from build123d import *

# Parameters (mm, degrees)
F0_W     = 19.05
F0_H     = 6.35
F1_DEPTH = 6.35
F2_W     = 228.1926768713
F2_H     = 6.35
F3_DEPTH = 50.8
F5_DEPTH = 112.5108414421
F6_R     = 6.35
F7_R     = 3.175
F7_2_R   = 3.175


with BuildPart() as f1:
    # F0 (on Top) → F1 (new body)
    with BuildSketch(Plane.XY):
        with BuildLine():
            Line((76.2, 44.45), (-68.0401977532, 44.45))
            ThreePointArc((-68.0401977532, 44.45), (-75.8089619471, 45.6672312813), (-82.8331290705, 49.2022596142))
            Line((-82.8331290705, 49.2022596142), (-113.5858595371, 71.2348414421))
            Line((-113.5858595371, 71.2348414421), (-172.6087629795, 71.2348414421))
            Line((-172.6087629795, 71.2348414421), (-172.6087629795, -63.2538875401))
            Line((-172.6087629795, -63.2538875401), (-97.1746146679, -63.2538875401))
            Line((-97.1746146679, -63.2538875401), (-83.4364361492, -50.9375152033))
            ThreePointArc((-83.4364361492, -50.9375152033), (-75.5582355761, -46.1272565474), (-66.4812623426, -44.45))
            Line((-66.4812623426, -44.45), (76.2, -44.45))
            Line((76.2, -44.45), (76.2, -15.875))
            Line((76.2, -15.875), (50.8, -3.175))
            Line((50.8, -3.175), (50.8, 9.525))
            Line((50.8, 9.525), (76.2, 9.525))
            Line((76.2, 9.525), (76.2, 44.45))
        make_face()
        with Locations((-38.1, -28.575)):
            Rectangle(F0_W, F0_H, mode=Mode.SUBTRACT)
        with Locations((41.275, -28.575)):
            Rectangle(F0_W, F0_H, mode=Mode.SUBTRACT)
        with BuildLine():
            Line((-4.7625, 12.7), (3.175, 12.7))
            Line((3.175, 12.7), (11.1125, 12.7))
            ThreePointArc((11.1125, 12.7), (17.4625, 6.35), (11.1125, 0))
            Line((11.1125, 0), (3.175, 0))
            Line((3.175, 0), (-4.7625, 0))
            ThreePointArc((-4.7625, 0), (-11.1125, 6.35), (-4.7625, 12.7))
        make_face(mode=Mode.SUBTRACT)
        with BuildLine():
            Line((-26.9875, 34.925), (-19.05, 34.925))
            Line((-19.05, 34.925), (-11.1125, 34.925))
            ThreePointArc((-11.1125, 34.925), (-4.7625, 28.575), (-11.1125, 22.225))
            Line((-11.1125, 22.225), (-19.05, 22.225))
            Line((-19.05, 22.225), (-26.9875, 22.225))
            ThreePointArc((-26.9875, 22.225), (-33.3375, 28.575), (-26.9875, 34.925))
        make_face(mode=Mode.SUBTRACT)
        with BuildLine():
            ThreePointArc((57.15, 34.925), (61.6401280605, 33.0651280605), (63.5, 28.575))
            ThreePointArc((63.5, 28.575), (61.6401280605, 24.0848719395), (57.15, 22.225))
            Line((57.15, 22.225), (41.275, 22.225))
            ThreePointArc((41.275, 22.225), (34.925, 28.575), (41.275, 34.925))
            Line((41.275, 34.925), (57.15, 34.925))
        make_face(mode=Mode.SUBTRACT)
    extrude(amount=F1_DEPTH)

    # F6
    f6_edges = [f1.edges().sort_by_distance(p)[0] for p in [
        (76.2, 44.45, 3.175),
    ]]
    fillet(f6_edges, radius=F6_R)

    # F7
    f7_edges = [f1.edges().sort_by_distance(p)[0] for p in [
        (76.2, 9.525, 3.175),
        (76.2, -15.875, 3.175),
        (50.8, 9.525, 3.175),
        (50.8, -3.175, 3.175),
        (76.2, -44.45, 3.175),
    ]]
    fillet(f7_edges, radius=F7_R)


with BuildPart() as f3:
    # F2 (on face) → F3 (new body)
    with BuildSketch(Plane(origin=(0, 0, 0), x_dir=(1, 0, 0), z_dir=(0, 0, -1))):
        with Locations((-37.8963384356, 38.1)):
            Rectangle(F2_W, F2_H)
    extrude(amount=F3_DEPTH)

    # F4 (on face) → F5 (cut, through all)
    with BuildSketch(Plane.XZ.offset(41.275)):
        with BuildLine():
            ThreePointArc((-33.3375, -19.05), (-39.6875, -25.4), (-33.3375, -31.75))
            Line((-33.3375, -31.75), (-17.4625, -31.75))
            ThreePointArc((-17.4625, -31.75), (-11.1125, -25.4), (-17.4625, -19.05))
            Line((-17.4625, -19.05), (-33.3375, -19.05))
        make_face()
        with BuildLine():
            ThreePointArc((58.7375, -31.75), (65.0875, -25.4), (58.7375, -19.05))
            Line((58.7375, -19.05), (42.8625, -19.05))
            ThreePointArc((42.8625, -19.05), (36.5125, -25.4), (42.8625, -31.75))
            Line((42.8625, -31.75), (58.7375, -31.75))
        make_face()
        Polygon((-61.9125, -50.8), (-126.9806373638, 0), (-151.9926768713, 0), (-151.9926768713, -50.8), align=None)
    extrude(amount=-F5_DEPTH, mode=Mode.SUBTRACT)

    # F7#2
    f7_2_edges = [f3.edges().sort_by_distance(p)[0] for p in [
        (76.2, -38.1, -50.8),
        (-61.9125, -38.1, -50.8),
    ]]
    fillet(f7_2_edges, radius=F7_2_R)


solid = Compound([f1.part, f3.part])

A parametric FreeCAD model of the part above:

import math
import FreeCAD as App
import Part
import Sketcher
from FreeCAD import Vector
Q = App.Units.Quantity


def edges_at(feature, points):
    """Names of the edges that pass closest to the given points."""
    edges = feature.Shape.Edges
    near = lambda p: min(range(len(edges)), key=lambda i: edges[i].distToShape(Part.Vertex(*p))[0])
    return sorted({f"Edge{near(p) + 1}" for p in points})


def add_polygon(sketch, points):
    """Adds a closed chain of lines whose ends are joined by coincident constraints."""
    first, n = sketch.GeometryCount, len(points)
    for a, b in zip(points, points[1:] + points[:1]):
        sketch.addGeometry(Part.LineSegment(App.Vector(*a, 0), App.Vector(*b, 0)), False)
    for i in range(n):
        sketch.addConstraint(Sketcher.Constraint("Coincident", first + i, 2, first + (i + 1) % n, 1))

doc = App.newDocument("Part")
body = doc.addObject("PartDesign::Body", "Body")

# Sketch on XY plane
sketch1 = body.newObject("Sketcher::SketchObject", "Sketch")
sketch1.AttachmentSupport = (doc.getObject("XY_Plane"), [""])
sketch1.MapMode = "FlatFace"
sketch1.addGeometry(Part.LineSegment(Vector(76, 44, 0), Vector(-68, 44, 0)), False)  # 0
sketch1.addGeometry(Part.ArcOfCircle(Part.Circle(Vector(-68, 70, 0), Vector(0, 0, 1), 25), math.radians(-126), math.radians(-90)), False)  # 1
sketch1.addGeometry(Part.LineSegment(Vector(-83, 49, 0), Vector(-114, 71, 0)), False)  # 2
sketch1.addGeometry(Part.LineSegment(Vector(-114, 71, 0), Vector(-173, 71, 0)), False)  # 3
sketch1.addGeometry(Part.LineSegment(Vector(-173, 71, 0), Vector(-173, -63, 0)), False)  # 4
sketch1.addGeometry(Part.LineSegment(Vector(-173, -63, 0), Vector(-97, -63, 0)), False)  # 5
sketch1.addGeometry(Part.LineSegment(Vector(-97, -63, 0), Vector(-83, -51, 0)), False)  # 6
sketch1.addGeometry(Part.ArcOfCircle(Part.Circle(Vector(-66, -70, 0), Vector(0, 0, 1), 25), math.radians(90), math.radians(132)), False)  # 7
sketch1.addGeometry(Part.LineSegment(Vector(-66, -44, 0), Vector(76, -44, 0)), False)  # 8
sketch1.addGeometry(Part.LineSegment(Vector(76, -44, 0), Vector(76, -16, 0)), False)  # 9
sketch1.addGeometry(Part.LineSegment(Vector(76, -16, 0), Vector(51, -3, 0)), False)  # 10
sketch1.addGeometry(Part.LineSegment(Vector(51, -3, 0), Vector(51, 10, 0)), False)  # 11
sketch1.addGeometry(Part.LineSegment(Vector(51, 10, 0), Vector(76, 10, 0)), False)  # 12
sketch1.addGeometry(Part.LineSegment(Vector(76, 10, 0), Vector(76, 44, 0)), False)  # 13
add_polygon(sketch1, [(-29, -32), (-48, -32), (-48, -25), (-29, -25)])  # lines 14-17
add_polygon(sketch1, [(51, -32), (32, -32), (32, -25), (51, -25)])  # lines 18-21
sketch1.addGeometry(Part.ArcOfCircle(Part.Circle(Vector(-5, 6, 0), Vector(0, 0, 1), 6), math.radians(90), math.radians(270)), False)  # 22
sketch1.addGeometry(Part.LineSegment(Vector(-5, 13, 0), Vector(11, 13, 0)), False)  # 23
sketch1.addGeometry(Part.ArcOfCircle(Part.Circle(Vector(11, 6, 0), Vector(0, 0, 1), 6), math.radians(-90), math.radians(90)), False)  # 24
sketch1.addGeometry(Part.LineSegment(Vector(11, 0, 0), Vector(-5, 0, 0)), False)  # 25
sketch1.addGeometry(Part.ArcOfCircle(Part.Circle(Vector(-27, 29, 0), Vector(0, 0, 1), 6), math.radians(90), math.radians(270)), False)  # 26
sketch1.addGeometry(Part.LineSegment(Vector(-27, 35, 0), Vector(-11, 35, 0)), False)  # 27
sketch1.addGeometry(Part.ArcOfCircle(Part.Circle(Vector(-11, 29, 0), Vector(0, 0, 1), 6), math.radians(-90), math.radians(90)), False)  # 28
sketch1.addGeometry(Part.LineSegment(Vector(-11, 22, 0), Vector(-27, 22, 0)), False)  # 29
sketch1.addGeometry(Part.LineSegment(Vector(41, 35, 0), Vector(57, 35, 0)), False)  # 30
sketch1.addGeometry(Part.ArcOfCircle(Part.Circle(Vector(57, 29, 0), Vector(0, 0, 1), 6), math.radians(0), math.radians(90)), False)  # 31
sketch1.addGeometry(Part.ArcOfCircle(Part.Circle(Vector(57, 29, 0), Vector(0, 0, 1), 6), math.radians(-90), math.radians(0)), False)  # 32
sketch1.addGeometry(Part.LineSegment(Vector(57, 22, 0), Vector(41, 22, 0)), False)  # 33
sketch1.addGeometry(Part.ArcOfCircle(Part.Circle(Vector(41, 29, 0), Vector(0, 0, 1), 6), math.radians(90), math.radians(270)), False)  # 34
sketch1.addConstraint(Sketcher.Constraint("Tangent", 0, 2, 1, 2))
sketch1.addConstraint(Sketcher.Constraint("Tangent", 1, 1, 2, 1))
sketch1.addConstraint(Sketcher.Constraint("Coincident", 2, 2, 3, 1))
sketch1.addConstraint(Sketcher.Constraint("Coincident", 3, 2, 4, 1))
sketch1.addConstraint(Sketcher.Constraint("Coincident", 4, 2, 5, 1))
sketch1.addConstraint(Sketcher.Constraint("Coincident", 5, 2, 6, 1))
sketch1.addConstraint(Sketcher.Constraint("Tangent", 6, 2, 7, 2))
sketch1.addConstraint(Sketcher.Constraint("Tangent", 7, 1, 8, 1))
sketch1.addConstraint(Sketcher.Constraint("Coincident", 8, 2, 9, 1))
sketch1.addConstraint(Sketcher.Constraint("Coincident", 9, 2, 10, 1))
sketch1.addConstraint(Sketcher.Constraint("Coincident", 10, 2, 11, 1))
sketch1.addConstraint(Sketcher.Constraint("Coincident", 11, 2, 12, 1))
sketch1.addConstraint(Sketcher.Constraint("Coincident", 12, 2, 13, 1))
sketch1.addConstraint(Sketcher.Constraint("Coincident", 13, 2, 0, 1))
sketch1.addConstraint(Sketcher.Constraint("Tangent", 22, 1, 23, 1))
sketch1.addConstraint(Sketcher.Constraint("Tangent", 23, 2, 24, 2))
sketch1.addConstraint(Sketcher.Constraint("Tangent", 24, 1, 25, 1))
sketch1.addConstraint(Sketcher.Constraint("Tangent", 25, 2, 22, 2))
sketch1.addConstraint(Sketcher.Constraint("Tangent", 26, 1, 27, 1))
sketch1.addConstraint(Sketcher.Constraint("Tangent", 27, 2, 28, 2))
sketch1.addConstraint(Sketcher.Constraint("Tangent", 28, 1, 29, 1))
sketch1.addConstraint(Sketcher.Constraint("Tangent", 29, 2, 26, 2))
sketch1.addConstraint(Sketcher.Constraint("Tangent", 30, 2, 31, 2))
sketch1.addConstraint(Sketcher.Constraint("Tangent", 31, 1, 32, 2))
sketch1.addConstraint(Sketcher.Constraint("Tangent", 32, 1, 33, 1))
sketch1.addConstraint(Sketcher.Constraint("Tangent", 33, 2, 34, 2))
sketch1.addConstraint(Sketcher.Constraint("Tangent", 34, 1, 30, 1))
sketch1.addConstraint(Sketcher.Constraint("Horizontal", 0))
sketch1.addConstraint(Sketcher.Constraint("Horizontal", 3))
sketch1.addConstraint(Sketcher.Constraint("Vertical", 4))
sketch1.addConstraint(Sketcher.Constraint("Horizontal", 5))
sketch1.addConstraint(Sketcher.Constraint("Horizontal", 8))
sketch1.addConstraint(Sketcher.Constraint("Vertical", 9))
sketch1.addConstraint(Sketcher.Constraint("Vertical", 11))
sketch1.addConstraint(Sketcher.Constraint("Horizontal", 12))
sketch1.addConstraint(Sketcher.Constraint("Vertical", 13))
sketch1.addConstraint(Sketcher.Constraint("Horizontal", 14))
sketch1.addConstraint(Sketcher.Constraint("Vertical", 15))
sketch1.addConstraint(Sketcher.Constraint("Horizontal", 16))
sketch1.addConstraint(Sketcher.Constraint("Vertical", 17))
sketch1.addConstraint(Sketcher.Constraint("Horizontal", 18))
sketch1.addConstraint(Sketcher.Constraint("Vertical", 19))
sketch1.addConstraint(Sketcher.Constraint("Horizontal", 20))
sketch1.addConstraint(Sketcher.Constraint("Vertical", 21))
sketch1.addConstraint(Sketcher.Constraint("Horizontal", 23))
sketch1.addConstraint(Sketcher.Constraint("Horizontal", 25))
sketch1.addConstraint(Sketcher.Constraint("Horizontal", 27))
sketch1.addConstraint(Sketcher.Constraint("Horizontal", 29))
sketch1.addConstraint(Sketcher.Constraint("Horizontal", 30))
sketch1.addConstraint(Sketcher.Constraint("Horizontal", 33))
sketch1.addConstraint(Sketcher.Constraint("Equal", 1, 7))
sketch1.addConstraint(Sketcher.Constraint("Equal", 24, 26))
sketch1.addConstraint(Sketcher.Constraint("Equal", 28, 31))
sketch1.addConstraint(Sketcher.Constraint("Equal", 31, 32))
sketch1.addConstraint(Sketcher.Constraint("Symmetric", 8, 2, 13, 2, -1))
sketch1.addConstraint(Sketcher.Constraint("PointOnObject", 24, 1, -1))
sketch1.addConstraint(Sketcher.Constraint("Horizontal", 28, 3, 31, 3))
sketch1.addConstraint(Sketcher.Constraint("Horizontal", 17, 2, 18, 2))
sketch1.addConstraint(Sketcher.Constraint("Horizontal", 16, 2, 19, 2))
sketch1.addConstraint(Sketcher.Constraint("Horizontal", 34, 3, 31, 1))
sketch1.addConstraint(Sketcher.Constraint("Vertical", 11, 2, 20, 2))
sketch1.addConstraint(Sketcher.Constraint("Equal", 16, 18))
sketch1.addConstraint(Sketcher.Constraint("Equal", 25, 27))
sketch1.addConstraint(Sketcher.Constraint("Equal", 29, 30))
sketch1.addConstraint(Sketcher.Constraint("Radius", 1, Q("1 in")))
sketch1.addConstraint(Sketcher.Constraint("DistanceX", 12, 1, 12, 2, Q("1 in")))
sketch1.addConstraint(Sketcher.Constraint("Radius", 22, Q("0.25 in")))
sketch1.addConstraint(Sketcher.Constraint("DistanceY", 11, 1, 11, 2, Q("0.5 in")))
sketch1.addConstraint(Sketcher.Constraint("DistanceX", -1, 1, 8, 2, Q("3 in")))
sketch1.addConstraint(Sketcher.Constraint("DistanceY", 15, 2, -1, 1, Q("1 in")))
sketch1.addConstraint(Sketcher.Constraint("DistanceY", 7, 3, 22, 3, Q("3 in")))
sketch1.addConstraint(Sketcher.Constraint("DistanceY", 9, 2, 11, 2, Q("1 in")))
sketch1.addConstraint(Sketcher.Constraint("DistanceY", 11, 2, 30, 2, Q("1 in")))
sketch1.addConstraint(Sketcher.Constraint("DistanceX", 14, 2, 14, 1, Q("0.75 in")))
sketch1.addConstraint(Sketcher.Constraint("DistanceY", 15, 1, 15, 2, Q("0.25 in")))
sketch1.addConstraint(Sketcher.Constraint("DistanceX", -1, 1, 31, 1, Q("2.5 in")))
sketch1.addConstraint(Sketcher.Constraint("DistanceX", 26, 3, 24, 3, Q("1.5 in")))
sketch1.addConstraint(Sketcher.Constraint("DistanceX", 23, 1, 23, 2, Q("0.625 in")))
sketch1.addConstraint(Sketcher.Constraint("DistanceY", 9, 1, 9, 2, Q("1.125 in")))
sketch1.addConstraint(Sketcher.Constraint("DistanceX", 22, 3, -1, 1, Q("0.1875 in")))
sketch1.addConstraint(Sketcher.Constraint("DistanceX", 14, 2, -1, 1, Q("1.875 in")))
sketch1.addConstraint(Sketcher.Constraint("DistanceX", 5, 1, 5, 2, 75.434148))
sketch1.addConstraint(Sketcher.Constraint("DistanceY", 4, 2, 4, 1, 134.488729))
sketch1.addConstraint(Sketcher.Constraint("DistanceX", 4, 2, 7, 3, 106.127501))
sketch1.addConstraint(Sketcher.Constraint("Distance", 6, 18.450761))
sketch1.addConstraint(Sketcher.Constraint("DistanceX", 0, 2, 0, 1, 144.240198))
sketch1.addConstraint(Sketcher.Constraint("DistanceX", 3, 2, 3, 1, 59.022903))
sketch1.addConstraint(Sketcher.Constraint("DistanceX", 8, 1, 8, 2, 142.681262))
pad1 = body.newObject("PartDesign::Pad", "Pad")
pad1.Profile = sketch1
pad1.Length = Q("0.25 in")
doc.recompute()

fillet = body.newObject("PartDesign::Fillet", "Fillet")
fillet.Base = (pad1, edges_at(pad1, [(76.2, 44.45, 3.175)]))
fillet.Radius = Q("0.25 in")
doc.recompute()

fillet2 = body.newObject("PartDesign::Fillet", "Fillet001")
fillet2.Base = (fillet, edges_at(fillet, [
    (76.2, 9.525, 3.175),
    (76.2, -15.875, 3.175),
    (50.8, 9.525, 3.175),
    (50.8, -3.175, 3.175),
    (76.2, -44.45, 3.175),
]))
fillet2.Radius = Q("0.125 in")
body2 = doc.addObject("PartDesign::Body", "Body001")

# Sketch on XY plane
sketch2 = body2.newObject("Sketcher::SketchObject", "Sketch001")
sketch2.AttachmentSupport = (doc.getObject("XY_Plane001"), [""])
sketch2.MapMode = "FlatFace"
add_polygon(sketch2, [(-152, -41), (-152, -35), (76, -35), (76, -41)])  # lines 0-3
sketch2.addConstraint(Sketcher.Constraint("Vertical", 0))
sketch2.addConstraint(Sketcher.Constraint("Horizontal", 1))
sketch2.addConstraint(Sketcher.Constraint("Vertical", 2))
sketch2.addConstraint(Sketcher.Constraint("Horizontal", 3))
sketch2.addConstraint(Sketcher.Constraint("DistanceX", -1, 1, 1, 2, Q("3 in")))
sketch2.addConstraint(Sketcher.Constraint("DistanceY", 0, 1, 0, 2, Q("0.25 in")))
sketch2.addConstraint(Sketcher.Constraint("DistanceY", 0, 2, -1, 1, Q("1.375 in")))
sketch2.addConstraint(Sketcher.Constraint("DistanceX", 1, 1, 1, 2, 228.192677))
pad2 = body2.newObject("PartDesign::Pad", "Pad001")
pad2.Profile = sketch2
pad2.Length = Q("2 in")
pad2.Reversed = True

# Sketch on XZ plane
sketch3 = body2.newObject("Sketcher::SketchObject", "Sketch002")
sketch3.AttachmentSupport = (doc.getObject("XZ_Plane001"), [""])
sketch3.MapMode = "FlatFace"
sketch3.AttachmentOffset = App.Placement(Vector(0, 0, 1.625 * 25.4), App.Rotation())
sketch3.addGeometry(Part.ArcOfCircle(Part.Circle(Vector(-33, -25, 0), Vector(0, 0, 1), 6), math.radians(90), math.radians(270)), False)  # 0
sketch3.addGeometry(Part.LineSegment(Vector(-33, -32, 0), Vector(-17, -32, 0)), False)  # 1
sketch3.addGeometry(Part.ArcOfCircle(Part.Circle(Vector(-17, -25, 0), Vector(0, 0, 1), 6), math.radians(-90), math.radians(90)), False)  # 2
sketch3.addGeometry(Part.LineSegment(Vector(-17, -19, 0), Vector(-33, -19, 0)), False)  # 3
sketch3.addGeometry(Part.ArcOfCircle(Part.Circle(Vector(59, -25, 0), Vector(0, 0, 1), 6), math.radians(-90), math.radians(90)), False)  # 4
sketch3.addGeometry(Part.LineSegment(Vector(59, -19, 0), Vector(43, -19, 0)), False)  # 5
sketch3.addGeometry(Part.ArcOfCircle(Part.Circle(Vector(43, -25, 0), Vector(0, 0, 1), 6), math.radians(90), math.radians(270)), False)  # 6
sketch3.addGeometry(Part.LineSegment(Vector(43, -32, 0), Vector(59, -32, 0)), False)  # 7
add_polygon(sketch3, [(-62, -51), (-127, 0), (-152, 0), (-152, -51)])  # lines 8-11
sketch3.addConstraint(Sketcher.Constraint("Tangent", 0, 2, 1, 1))
sketch3.addConstraint(Sketcher.Constraint("Tangent", 1, 2, 2, 1))
sketch3.addConstraint(Sketcher.Constraint("Tangent", 2, 2, 3, 1))
sketch3.addConstraint(Sketcher.Constraint("Tangent", 3, 2, 0, 1))
sketch3.addConstraint(Sketcher.Constraint("Tangent", 4, 2, 5, 1))
sketch3.addConstraint(Sketcher.Constraint("Tangent", 5, 2, 6, 1))
sketch3.addConstraint(Sketcher.Constraint("Tangent", 6, 2, 7, 1))
sketch3.addConstraint(Sketcher.Constraint("Tangent", 7, 2, 4, 1))
sketch3.addConstraint(Sketcher.Constraint("Horizontal", 1))
sketch3.addConstraint(Sketcher.Constraint("Horizontal", 3))
sketch3.addConstraint(Sketcher.Constraint("Horizontal", 5))
sketch3.addConstraint(Sketcher.Constraint("Horizontal", 7))
sketch3.addConstraint(Sketcher.Constraint("Horizontal", 9))
sketch3.addConstraint(Sketcher.Constraint("Vertical", 10))
sketch3.addConstraint(Sketcher.Constraint("Horizontal", 11))
sketch3.addConstraint(Sketcher.Constraint("Equal", 2, 4))
sketch3.addConstraint(Sketcher.Constraint("PointOnObject", 8, 2, -1))
sketch3.addConstraint(Sketcher.Constraint("Horizontal", 2, 3, 4, 3))
sketch3.addConstraint(Sketcher.Constraint("Equal", 3, 5))
sketch3.addConstraint(Sketcher.Constraint("DistanceY", 10, 2, 10, 1, Q("2 in")))
sketch3.addConstraint(Sketcher.Constraint("Radius", 0, Q("0.25 in")))
sketch3.addConstraint(Sketcher.Constraint("DistanceY", 0, 3, -1, 1, Q("1 in")))
sketch3.addConstraint(Sketcher.Constraint("DistanceX", 2, 3, 4, 3, Q("3 in")))
sketch3.addConstraint(Sketcher.Constraint("Distance", 8, Q("3.25 in")))
sketch3.addConstraint(Sketcher.Constraint("DistanceX", 1, 1, 1, 2, Q("0.625 in")))
sketch3.addConstraint(Sketcher.Constraint("DistanceX", 11, 2, 1, 2, Q("1.75 in")))
sketch3.addConstraint(Sketcher.Constraint("DistanceX", 0, 3, -1, 1, Q("1.3125 in")))
sketch3.addConstraint(Sketcher.Constraint("DistanceX", 9, 2, 9, 1, 25.01204))
pocket1 = body2.newObject("PartDesign::Pocket", "Pocket")
pocket1.Profile = sketch3
pocket1.Type = "ThroughAll"
doc.recompute()

fillet3 = body2.newObject("PartDesign::Fillet", "Fillet002")
fillet3.Base = (pocket1, edges_at(pocket1, [(76.2, -38.1, -50.8), (-61.913, -38.1, -50.8)]))
fillet3.Radius = Q("0.125 in")

doc.recompute()
